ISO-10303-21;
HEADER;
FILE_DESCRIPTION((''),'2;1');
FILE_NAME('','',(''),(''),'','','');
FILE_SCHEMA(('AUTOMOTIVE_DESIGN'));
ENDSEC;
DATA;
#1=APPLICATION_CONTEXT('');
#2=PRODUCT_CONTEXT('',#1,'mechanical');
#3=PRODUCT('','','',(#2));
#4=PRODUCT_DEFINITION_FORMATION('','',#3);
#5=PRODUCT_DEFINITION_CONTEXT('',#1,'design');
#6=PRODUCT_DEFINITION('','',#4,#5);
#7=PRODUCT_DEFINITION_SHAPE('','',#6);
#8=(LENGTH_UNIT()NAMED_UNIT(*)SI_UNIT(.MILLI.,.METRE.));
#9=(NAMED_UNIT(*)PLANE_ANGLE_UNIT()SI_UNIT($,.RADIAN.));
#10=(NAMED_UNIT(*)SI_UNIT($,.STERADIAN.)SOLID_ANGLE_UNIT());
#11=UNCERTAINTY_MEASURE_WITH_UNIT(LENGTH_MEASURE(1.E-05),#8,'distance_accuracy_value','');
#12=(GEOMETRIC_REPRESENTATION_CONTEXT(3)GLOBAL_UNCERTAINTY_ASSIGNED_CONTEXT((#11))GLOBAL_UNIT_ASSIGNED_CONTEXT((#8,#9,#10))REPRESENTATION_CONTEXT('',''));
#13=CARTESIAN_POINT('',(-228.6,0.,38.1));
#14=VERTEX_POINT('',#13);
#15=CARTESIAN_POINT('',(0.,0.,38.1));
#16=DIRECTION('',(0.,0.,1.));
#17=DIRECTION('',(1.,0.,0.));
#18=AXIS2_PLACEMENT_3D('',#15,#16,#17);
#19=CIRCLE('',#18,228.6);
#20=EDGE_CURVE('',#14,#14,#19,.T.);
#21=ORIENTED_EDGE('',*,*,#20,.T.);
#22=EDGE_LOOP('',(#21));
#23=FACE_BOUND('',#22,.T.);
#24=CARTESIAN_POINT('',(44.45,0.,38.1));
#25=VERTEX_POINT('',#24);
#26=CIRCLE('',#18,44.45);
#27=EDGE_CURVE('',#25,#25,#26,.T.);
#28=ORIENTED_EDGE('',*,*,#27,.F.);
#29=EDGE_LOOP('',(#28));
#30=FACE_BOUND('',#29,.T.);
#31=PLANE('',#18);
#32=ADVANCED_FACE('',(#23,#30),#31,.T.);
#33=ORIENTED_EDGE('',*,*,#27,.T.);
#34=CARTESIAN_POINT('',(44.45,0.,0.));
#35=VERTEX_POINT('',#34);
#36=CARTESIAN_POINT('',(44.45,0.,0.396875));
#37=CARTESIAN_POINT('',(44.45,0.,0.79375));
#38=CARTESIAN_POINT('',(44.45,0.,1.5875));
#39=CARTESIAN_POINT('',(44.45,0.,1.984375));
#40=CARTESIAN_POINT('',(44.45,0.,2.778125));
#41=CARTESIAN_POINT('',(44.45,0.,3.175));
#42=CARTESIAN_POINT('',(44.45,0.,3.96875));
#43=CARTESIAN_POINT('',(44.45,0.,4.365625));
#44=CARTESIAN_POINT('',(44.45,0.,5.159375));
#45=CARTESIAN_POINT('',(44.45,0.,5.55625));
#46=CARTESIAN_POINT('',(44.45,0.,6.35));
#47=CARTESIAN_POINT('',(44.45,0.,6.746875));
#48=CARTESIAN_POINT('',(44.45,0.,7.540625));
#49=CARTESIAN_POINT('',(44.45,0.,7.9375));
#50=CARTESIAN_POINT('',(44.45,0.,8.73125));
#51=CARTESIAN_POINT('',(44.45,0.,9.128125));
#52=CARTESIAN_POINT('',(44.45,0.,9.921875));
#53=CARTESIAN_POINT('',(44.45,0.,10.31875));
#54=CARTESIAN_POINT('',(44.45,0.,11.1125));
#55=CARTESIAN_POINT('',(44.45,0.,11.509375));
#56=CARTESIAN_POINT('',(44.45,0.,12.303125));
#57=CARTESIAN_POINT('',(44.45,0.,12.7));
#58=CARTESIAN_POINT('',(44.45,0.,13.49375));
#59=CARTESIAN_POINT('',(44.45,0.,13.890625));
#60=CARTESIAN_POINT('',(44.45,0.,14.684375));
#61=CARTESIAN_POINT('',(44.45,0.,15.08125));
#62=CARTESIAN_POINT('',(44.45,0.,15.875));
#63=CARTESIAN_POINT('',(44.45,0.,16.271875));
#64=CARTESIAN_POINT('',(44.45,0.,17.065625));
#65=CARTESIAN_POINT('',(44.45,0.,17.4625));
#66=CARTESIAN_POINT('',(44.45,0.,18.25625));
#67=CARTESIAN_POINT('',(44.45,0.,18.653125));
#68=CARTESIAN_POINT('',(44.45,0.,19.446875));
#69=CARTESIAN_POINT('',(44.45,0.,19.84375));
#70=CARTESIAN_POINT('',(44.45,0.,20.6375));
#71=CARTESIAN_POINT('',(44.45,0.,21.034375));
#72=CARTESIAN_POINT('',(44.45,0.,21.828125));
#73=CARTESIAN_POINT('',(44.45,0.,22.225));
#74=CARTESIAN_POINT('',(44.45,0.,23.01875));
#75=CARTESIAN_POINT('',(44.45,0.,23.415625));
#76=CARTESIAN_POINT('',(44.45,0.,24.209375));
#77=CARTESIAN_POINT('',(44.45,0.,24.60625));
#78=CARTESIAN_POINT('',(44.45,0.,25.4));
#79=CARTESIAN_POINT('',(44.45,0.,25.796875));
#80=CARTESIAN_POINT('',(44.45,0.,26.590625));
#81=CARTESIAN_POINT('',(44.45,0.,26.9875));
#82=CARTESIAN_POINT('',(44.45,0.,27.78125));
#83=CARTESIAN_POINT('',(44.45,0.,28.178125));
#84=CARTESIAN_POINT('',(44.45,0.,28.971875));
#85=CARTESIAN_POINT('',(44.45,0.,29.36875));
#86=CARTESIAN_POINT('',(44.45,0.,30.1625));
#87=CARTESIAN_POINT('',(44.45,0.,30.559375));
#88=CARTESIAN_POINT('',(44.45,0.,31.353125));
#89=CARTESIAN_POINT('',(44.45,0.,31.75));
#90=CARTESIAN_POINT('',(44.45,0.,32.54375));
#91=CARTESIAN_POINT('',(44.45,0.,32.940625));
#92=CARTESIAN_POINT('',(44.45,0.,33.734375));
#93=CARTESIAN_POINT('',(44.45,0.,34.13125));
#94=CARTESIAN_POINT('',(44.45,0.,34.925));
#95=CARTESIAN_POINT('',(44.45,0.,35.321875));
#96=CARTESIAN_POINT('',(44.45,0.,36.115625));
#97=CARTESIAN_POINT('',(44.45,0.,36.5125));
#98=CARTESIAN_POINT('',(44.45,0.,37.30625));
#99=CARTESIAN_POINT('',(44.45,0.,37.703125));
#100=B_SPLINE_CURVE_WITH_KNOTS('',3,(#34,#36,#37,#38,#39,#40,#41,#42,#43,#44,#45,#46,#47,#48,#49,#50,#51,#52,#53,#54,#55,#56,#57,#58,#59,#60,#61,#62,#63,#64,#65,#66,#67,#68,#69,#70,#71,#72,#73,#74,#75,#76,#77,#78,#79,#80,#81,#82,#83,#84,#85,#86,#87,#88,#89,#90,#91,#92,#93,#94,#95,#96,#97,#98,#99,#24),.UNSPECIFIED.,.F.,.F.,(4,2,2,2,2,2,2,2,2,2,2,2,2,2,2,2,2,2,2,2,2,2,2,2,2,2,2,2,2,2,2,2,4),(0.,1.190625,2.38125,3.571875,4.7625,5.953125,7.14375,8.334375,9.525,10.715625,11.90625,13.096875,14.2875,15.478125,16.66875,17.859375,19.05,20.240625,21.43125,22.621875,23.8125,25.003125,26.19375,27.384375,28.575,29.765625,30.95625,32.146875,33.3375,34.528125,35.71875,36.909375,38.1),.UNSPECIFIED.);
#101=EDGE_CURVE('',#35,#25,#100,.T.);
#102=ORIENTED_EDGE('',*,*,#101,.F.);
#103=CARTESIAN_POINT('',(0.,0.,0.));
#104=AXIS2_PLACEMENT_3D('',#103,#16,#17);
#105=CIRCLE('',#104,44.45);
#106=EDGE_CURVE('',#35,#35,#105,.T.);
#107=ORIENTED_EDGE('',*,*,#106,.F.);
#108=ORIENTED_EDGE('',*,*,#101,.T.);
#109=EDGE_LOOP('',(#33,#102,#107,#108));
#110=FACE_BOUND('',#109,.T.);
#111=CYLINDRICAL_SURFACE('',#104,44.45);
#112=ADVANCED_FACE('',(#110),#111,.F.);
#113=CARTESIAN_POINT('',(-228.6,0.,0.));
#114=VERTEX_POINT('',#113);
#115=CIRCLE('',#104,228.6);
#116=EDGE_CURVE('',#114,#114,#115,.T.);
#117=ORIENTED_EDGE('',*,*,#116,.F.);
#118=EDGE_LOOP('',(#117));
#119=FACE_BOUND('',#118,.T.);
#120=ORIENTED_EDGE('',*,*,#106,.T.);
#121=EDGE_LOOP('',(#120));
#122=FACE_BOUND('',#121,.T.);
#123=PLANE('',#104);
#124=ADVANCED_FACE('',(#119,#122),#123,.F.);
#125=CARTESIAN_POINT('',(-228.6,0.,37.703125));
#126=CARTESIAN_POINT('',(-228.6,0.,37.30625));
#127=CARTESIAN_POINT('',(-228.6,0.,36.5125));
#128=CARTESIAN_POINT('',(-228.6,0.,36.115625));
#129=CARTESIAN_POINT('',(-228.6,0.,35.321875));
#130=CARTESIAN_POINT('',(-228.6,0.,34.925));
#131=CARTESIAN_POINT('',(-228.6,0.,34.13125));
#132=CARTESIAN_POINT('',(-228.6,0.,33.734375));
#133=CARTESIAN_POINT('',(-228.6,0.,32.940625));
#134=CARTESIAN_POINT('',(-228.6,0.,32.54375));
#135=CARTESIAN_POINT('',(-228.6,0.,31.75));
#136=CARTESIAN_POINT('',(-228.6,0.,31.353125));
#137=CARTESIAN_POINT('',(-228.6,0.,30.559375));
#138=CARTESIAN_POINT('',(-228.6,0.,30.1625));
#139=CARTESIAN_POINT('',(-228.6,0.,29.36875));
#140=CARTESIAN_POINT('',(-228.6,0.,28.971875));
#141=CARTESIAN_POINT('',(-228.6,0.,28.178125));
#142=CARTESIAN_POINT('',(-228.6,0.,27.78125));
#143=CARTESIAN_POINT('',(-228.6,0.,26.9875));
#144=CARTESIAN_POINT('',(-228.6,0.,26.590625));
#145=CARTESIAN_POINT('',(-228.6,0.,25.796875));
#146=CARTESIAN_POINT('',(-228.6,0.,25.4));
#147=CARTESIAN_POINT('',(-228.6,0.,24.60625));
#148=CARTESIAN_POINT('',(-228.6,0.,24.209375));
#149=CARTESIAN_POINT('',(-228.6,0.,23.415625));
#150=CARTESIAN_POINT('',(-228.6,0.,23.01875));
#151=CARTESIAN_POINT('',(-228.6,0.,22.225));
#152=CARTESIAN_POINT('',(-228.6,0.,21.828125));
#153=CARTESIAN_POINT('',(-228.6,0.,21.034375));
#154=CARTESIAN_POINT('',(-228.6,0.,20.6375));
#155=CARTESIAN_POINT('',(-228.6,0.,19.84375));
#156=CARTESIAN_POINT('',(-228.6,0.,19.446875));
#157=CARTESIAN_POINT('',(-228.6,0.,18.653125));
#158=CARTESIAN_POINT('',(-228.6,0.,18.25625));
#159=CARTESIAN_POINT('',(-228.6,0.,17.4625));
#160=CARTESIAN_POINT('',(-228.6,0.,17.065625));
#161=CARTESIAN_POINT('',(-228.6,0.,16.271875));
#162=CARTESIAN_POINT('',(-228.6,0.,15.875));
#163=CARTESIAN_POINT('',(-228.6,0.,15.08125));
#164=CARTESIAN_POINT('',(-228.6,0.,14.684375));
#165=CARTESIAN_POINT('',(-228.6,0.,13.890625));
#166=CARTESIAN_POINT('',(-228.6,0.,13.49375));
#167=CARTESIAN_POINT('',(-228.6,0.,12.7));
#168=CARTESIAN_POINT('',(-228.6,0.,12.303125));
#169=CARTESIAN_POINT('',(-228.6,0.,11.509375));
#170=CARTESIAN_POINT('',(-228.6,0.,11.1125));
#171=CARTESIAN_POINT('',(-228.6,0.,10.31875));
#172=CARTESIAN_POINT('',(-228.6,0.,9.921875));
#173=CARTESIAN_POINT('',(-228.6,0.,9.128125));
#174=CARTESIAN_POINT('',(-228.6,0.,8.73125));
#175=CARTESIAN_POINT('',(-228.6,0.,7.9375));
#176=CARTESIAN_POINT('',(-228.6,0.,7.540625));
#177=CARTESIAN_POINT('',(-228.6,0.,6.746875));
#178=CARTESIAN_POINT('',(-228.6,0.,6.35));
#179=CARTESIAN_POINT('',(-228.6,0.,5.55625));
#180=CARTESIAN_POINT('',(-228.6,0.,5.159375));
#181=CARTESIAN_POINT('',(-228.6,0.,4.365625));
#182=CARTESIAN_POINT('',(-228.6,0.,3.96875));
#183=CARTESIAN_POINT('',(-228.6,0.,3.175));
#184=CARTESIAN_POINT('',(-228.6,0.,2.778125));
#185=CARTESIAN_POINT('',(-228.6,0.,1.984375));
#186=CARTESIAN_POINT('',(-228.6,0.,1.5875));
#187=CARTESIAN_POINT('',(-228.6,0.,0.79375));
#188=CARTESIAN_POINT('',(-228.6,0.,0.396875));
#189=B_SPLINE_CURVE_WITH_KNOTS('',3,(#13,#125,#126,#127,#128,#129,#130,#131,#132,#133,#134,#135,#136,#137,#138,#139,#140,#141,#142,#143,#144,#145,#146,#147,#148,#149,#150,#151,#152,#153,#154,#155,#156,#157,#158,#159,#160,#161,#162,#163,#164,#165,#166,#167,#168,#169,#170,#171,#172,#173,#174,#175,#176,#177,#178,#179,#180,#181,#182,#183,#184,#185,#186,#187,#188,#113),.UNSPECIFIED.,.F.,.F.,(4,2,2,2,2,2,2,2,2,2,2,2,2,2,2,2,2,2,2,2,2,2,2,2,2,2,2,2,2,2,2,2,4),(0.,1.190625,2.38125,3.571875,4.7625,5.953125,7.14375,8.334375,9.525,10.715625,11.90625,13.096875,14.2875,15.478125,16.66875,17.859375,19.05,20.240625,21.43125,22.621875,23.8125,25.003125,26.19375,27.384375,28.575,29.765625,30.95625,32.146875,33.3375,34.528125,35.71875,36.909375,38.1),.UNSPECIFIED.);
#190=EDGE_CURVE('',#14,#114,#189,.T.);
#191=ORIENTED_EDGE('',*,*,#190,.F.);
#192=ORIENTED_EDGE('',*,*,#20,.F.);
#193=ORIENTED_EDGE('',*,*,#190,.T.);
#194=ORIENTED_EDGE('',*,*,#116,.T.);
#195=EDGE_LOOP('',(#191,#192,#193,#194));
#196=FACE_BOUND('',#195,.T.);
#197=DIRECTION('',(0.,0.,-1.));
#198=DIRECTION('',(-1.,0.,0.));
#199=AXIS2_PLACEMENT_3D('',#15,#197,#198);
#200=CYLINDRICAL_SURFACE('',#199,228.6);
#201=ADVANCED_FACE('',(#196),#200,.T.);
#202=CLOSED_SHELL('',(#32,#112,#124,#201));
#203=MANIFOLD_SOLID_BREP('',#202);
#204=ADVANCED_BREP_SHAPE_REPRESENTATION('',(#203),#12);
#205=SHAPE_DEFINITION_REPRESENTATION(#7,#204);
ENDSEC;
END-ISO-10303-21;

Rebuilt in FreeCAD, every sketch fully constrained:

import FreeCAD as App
import Part
import Sketcher
from FreeCAD import Vector
Q = App.Units.Quantity

doc = App.newDocument("Part")
body = doc.addObject("PartDesign::Body", "Body")

# Sketch on XY plane
sketch1 = body.newObject("Sketcher::SketchObject", "Sketch")
sketch1.AttachmentSupport = (doc.getObject("XY_Plane"), [""])
sketch1.MapMode = "FlatFace"
sketch1.addGeometry(Part.Circle(Vector(0, 0, 0), Vector(0, 0, 1), 229), False)
sketch1.addConstraint(Sketcher.Constraint("Coincident", 0, 3, -1, 1))
sketch1.addConstraint(Sketcher.Constraint("Diameter", 0, Q("18 in")))
pad1 = body.newObject("PartDesign::Pad", "Pad")
pad1.Profile = sketch1
pad1.Length = Q("1.5 in")

# Sketch on XY plane
sketch2 = body.newObject("Sketcher::SketchObject", "Sketch001")
sketch2.AttachmentSupport = (doc.getObject("XY_Plane"), [""])
sketch2.MapMode = "FlatFace"
sketch2.AttachmentOffset = App.Placement(Vector(0, 0, 1.5 * 25.4), App.Rotation())
sketch2.addGeometry(Part.Circle(Vector(0, 0, 0), Vector(0, 0, 1), 44), False)
sketch2.addConstraint(Sketcher.Constraint("Coincident", 0, 3, -1, 1))
sketch2.addConstraint(Sketcher.Constraint("Diameter", 0, Q("3.5 in")))
pocket1 = body.newObject("PartDesign::Pocket", "Pocket")
pocket1.Profile = sketch2
pocket1.Length = Q("1.5 in")

doc.recompute()
